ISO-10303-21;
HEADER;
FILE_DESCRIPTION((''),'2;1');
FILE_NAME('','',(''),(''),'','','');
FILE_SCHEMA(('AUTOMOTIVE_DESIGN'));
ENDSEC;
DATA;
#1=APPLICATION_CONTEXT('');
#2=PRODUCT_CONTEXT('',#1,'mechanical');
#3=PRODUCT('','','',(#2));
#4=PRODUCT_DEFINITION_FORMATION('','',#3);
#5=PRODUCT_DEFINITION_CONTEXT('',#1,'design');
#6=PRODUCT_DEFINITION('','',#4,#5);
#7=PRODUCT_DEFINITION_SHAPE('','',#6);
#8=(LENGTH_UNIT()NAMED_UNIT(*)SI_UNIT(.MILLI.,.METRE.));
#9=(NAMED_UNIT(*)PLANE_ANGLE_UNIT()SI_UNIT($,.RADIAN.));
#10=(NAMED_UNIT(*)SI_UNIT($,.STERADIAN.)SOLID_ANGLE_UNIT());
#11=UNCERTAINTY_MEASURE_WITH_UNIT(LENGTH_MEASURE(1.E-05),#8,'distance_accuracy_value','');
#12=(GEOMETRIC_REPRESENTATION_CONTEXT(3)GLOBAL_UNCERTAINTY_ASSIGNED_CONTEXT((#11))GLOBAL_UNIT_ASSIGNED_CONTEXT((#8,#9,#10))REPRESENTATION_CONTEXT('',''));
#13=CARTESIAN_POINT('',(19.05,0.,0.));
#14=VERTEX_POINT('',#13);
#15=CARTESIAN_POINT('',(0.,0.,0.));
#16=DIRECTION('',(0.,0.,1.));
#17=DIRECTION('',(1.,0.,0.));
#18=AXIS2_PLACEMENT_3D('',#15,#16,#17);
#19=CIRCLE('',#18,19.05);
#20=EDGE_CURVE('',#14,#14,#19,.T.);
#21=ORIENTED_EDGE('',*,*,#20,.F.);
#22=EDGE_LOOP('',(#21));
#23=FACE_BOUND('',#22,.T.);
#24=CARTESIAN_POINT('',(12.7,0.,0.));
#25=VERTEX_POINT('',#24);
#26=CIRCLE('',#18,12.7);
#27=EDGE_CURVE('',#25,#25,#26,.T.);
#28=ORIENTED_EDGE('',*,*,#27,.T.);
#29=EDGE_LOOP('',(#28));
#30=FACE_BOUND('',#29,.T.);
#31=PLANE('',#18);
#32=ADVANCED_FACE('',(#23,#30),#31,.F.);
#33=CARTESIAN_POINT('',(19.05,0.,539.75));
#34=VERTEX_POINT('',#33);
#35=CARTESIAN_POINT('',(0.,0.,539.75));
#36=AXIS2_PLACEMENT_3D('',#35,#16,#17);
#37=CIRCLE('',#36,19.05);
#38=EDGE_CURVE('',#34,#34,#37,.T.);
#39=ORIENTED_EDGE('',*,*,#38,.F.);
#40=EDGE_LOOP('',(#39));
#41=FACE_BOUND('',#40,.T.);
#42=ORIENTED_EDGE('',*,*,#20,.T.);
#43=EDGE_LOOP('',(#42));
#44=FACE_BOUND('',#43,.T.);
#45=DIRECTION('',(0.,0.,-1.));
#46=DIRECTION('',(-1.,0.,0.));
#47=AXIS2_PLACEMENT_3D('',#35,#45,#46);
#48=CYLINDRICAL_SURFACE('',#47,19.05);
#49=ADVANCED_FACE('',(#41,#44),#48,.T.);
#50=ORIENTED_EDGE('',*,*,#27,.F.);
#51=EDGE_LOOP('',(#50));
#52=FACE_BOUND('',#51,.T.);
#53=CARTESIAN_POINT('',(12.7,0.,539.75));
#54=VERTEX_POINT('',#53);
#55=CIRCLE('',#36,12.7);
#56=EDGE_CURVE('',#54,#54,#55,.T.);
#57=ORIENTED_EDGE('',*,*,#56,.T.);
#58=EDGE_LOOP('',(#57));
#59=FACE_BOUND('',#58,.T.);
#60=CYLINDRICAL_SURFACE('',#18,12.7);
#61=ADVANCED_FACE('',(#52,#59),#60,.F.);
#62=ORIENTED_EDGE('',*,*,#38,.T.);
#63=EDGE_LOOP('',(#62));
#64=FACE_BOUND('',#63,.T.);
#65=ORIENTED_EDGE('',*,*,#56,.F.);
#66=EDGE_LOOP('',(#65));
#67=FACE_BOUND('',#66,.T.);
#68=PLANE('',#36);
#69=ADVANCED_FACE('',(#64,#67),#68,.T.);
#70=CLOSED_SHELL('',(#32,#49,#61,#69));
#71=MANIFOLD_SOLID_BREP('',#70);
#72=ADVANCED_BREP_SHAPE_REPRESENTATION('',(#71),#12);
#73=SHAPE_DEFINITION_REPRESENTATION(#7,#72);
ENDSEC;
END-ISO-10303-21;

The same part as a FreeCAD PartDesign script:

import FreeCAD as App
import Part
import Sketcher
Q = App.Units.Quantity

doc = App.newDocument("Part")
body = doc.addObject("PartDesign::Body", "Body")

sketch1 = doc.addObject("Sketcher::SketchObject", "Sketch")
body.addObject(sketch1)
sketch1.AttachmentSupport = (doc.XY_Plane, [""])
sketch1.MapMode = "FlatFace"
sketch1.addGeometry(Part.Circle(App.Vector(0, 0, 0), App.Vector(0, 0, 1), 19), False)
sketch1.addConstraint(Sketcher.Constraint("Coincident", 0, 3, -1, 1))
sketch1.addConstraint(Sketcher.Constraint("Diameter", 0, Q("1.5 in")))
pad1 = doc.addObject("PartDesign::Pad", "Pad")
body.addObject(pad1)
pad1.Profile = sketch1
pad1.Length = Q("21.25 in")

sketch2 = doc.addObject("Sketcher::SketchObject", "Sketch001")
body.addObject(sketch2)
sketch2.AttachmentSupport = (doc.XY_Plane, [""])
sketch2.MapMode = "FlatFace"
sketch2.AttachmentOffset = App.Placement(App.Vector(0, 0, 21.25 * 25.4), App.Rotation())
sketch2.addGeometry(Part.Circle(App.Vector(0, 0, 0), App.Vector(0, 0, 1), 13), False)
sketch2.addConstraint(Sketcher.Constraint("Coincident", 0, 3, -1, 1))
sketch2.addConstraint(Sketcher.Constraint("Diameter", 0, Q("1 in")))
pocket1 = doc.addObject("PartDesign::Pocket", "Pocket")
body.addObject(pocket1)
pocket1.Profile = sketch2
pocket1.Length = Q("21.25 in")

doc.recompute()
